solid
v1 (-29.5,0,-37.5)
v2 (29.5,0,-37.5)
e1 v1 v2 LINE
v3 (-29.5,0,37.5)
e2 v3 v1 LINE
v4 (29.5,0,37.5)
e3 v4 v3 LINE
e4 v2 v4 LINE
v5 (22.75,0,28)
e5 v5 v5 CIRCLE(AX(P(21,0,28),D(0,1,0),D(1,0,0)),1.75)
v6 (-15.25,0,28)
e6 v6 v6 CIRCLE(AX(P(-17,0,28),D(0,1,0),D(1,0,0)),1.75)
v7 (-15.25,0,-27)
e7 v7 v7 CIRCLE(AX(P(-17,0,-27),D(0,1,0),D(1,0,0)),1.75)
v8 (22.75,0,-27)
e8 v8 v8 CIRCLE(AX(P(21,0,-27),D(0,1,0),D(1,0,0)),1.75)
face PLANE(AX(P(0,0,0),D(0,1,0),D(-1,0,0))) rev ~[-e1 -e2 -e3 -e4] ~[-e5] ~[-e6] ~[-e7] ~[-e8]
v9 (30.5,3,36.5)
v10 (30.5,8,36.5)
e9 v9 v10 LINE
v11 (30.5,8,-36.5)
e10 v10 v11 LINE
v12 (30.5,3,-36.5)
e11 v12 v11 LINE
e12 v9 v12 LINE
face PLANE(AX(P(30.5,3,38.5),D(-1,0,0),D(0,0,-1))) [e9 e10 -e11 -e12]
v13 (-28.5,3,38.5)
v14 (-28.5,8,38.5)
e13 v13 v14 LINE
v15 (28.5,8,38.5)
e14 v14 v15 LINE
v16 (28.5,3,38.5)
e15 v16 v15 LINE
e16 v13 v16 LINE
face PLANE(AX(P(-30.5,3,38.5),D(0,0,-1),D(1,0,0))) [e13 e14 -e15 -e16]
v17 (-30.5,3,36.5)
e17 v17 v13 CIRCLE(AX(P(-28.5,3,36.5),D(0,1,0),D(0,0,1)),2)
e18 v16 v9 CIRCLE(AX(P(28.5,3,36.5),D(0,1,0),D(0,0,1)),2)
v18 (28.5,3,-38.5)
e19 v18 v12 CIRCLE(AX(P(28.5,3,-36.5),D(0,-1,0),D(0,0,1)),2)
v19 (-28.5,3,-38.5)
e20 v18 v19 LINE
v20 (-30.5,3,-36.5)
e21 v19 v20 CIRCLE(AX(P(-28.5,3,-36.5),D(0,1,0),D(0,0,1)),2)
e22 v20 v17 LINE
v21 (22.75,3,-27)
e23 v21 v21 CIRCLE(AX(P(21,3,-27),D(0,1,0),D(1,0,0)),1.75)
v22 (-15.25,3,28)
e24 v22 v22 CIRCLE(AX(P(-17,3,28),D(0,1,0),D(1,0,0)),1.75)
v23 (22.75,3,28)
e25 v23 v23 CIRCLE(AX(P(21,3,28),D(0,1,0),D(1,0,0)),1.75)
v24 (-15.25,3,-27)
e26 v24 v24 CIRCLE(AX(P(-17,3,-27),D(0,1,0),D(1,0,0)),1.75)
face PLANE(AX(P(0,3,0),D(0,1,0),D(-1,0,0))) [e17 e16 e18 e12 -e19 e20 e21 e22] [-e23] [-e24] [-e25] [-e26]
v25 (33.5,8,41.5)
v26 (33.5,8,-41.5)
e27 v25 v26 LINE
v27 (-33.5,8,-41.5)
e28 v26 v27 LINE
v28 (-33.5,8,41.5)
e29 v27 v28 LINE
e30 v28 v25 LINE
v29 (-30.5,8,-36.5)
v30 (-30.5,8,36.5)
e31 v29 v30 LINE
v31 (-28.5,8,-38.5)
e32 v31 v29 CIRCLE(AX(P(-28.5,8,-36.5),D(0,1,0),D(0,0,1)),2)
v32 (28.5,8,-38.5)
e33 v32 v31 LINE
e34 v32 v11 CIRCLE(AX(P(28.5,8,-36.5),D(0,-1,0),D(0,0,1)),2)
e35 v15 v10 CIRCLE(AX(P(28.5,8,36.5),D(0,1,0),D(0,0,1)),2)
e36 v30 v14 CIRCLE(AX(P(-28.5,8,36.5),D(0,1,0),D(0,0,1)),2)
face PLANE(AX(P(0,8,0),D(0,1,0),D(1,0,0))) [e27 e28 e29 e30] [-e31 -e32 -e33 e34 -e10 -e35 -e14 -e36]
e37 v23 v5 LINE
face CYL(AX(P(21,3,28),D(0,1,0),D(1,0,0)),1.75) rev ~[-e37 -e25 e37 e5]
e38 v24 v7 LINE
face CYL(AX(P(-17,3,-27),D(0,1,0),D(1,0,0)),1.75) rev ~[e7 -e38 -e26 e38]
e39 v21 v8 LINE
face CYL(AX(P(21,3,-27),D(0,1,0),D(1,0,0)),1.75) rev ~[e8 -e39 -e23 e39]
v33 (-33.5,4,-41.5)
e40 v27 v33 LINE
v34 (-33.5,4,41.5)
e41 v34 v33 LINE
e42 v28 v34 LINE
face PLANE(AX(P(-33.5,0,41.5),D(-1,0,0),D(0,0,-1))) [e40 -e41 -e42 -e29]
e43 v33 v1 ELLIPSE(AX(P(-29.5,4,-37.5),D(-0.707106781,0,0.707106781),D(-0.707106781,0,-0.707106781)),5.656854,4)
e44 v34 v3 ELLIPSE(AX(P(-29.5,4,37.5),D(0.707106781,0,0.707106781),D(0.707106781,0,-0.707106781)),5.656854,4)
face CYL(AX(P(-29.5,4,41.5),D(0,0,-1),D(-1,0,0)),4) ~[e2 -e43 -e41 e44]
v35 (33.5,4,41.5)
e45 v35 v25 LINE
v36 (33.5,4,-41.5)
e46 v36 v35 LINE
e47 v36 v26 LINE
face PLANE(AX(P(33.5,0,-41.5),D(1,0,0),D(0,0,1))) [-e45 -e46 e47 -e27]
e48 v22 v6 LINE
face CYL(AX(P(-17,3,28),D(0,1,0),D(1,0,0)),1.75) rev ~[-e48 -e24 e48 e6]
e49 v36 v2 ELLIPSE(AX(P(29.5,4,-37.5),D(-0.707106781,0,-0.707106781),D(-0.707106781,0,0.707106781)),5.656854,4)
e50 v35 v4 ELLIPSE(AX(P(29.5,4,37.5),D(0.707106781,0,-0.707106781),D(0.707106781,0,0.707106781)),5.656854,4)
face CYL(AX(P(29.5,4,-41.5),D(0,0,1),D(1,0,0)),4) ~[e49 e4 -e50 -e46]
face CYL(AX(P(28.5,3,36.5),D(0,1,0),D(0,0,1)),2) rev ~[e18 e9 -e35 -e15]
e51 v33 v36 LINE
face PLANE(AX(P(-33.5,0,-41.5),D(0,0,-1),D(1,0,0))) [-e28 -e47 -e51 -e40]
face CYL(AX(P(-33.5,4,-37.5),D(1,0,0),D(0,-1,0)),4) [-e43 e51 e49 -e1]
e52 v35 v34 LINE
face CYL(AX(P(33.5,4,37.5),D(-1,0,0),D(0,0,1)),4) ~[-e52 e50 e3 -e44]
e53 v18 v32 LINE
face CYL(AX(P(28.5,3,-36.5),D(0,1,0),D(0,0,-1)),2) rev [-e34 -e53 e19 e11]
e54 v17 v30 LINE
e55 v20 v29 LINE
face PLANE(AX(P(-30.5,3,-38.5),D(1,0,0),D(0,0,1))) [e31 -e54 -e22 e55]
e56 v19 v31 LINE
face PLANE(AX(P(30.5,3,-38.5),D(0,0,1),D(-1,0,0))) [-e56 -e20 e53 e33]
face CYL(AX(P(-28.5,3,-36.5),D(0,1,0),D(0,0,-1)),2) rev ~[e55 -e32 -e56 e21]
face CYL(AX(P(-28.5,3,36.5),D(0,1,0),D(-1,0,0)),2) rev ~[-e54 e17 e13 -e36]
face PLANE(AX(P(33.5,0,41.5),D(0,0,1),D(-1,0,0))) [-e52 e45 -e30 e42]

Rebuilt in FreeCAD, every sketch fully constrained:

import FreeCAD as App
import Part
import Sketcher


def edges_at(feature, points):
    """Names of the edges that pass closest to the given points."""
    edges = feature.Shape.Edges
    near = lambda p: min(range(len(edges)), key=lambda i: edges[i].distToShape(Part.Vertex(*p))[0])
    return sorted({f"Edge{near(p) + 1}" for p in points})


def add_polygon(sketch, points):
    """Adds a closed chain of lines whose ends are joined by coincident constraints."""
    first, n = sketch.GeometryCount, len(points)
    for a, b in zip(points, points[1:] + points[:1]):
        sketch.addGeometry(Part.LineSegment(App.Vector(*a, 0), App.Vector(*b, 0)), False)
    for i in range(n):
        sketch.addConstraint(Sketcher.Constraint("Coincident", first + i, 2, first + (i + 1) % n, 1))

doc = App.newDocument("Part")
body = doc.addObject("PartDesign::Body", "Body")

# Sketch on XZ plane
sketch1 = body.newObject("Sketcher::SketchObject", "Sketch")
sketch1.AttachmentSupport = (doc.getObject("XZ_Plane"), [""])
sketch1.MapMode = "FlatFace"
add_polygon(sketch1, [(-34, 42), (34, 42), (34, -42), (-34, -42)])  # lines 0-3
sketch1.addConstraint(Sketcher.Constraint("Horizontal", 0))
sketch1.addConstraint(Sketcher.Constraint("Vertical", 1))
sketch1.addConstraint(Sketcher.Constraint("Horizontal", 2))
sketch1.addConstraint(Sketcher.Constraint("Vertical", 3))
sketch1.addConstraint(Sketcher.Constraint("Symmetric", 0, 2, 2, 2, -1, 1))
sketch1.addConstraint(Sketcher.Constraint("DistanceX", 0, 1, 0, 2, 67.0))
sketch1.addConstraint(Sketcher.Constraint("DistanceY", 1, 2, 1, 1, 83.0))
pad1 = body.newObject("PartDesign::Pad", "Pad")
pad1.Profile = sketch1
pad1.Length = 3
pad1.Reversed = True

# Sketch on XZ plane
sketch2 = body.newObject("Sketcher::SketchObject", "Sketch001")
sketch2.AttachmentSupport = (doc.getObject("XZ_Plane"), [""])
sketch2.MapMode = "FlatFace"
sketch2.AttachmentOffset = App.Placement(App.Vector(0, 0, -3), App.Rotation())
add_polygon(sketch2, [(34, -42), (-34, -42), (-34, 42), (34, 42)])  # lines 0-3
add_polygon(sketch2, [(-30, -38), (30, -38), (30, 38), (-30, 38)])  # lines 4-7
sketch2.addConstraint(Sketcher.Constraint("Horizontal", 0))
sketch2.addConstraint(Sketcher.Constraint("Vertical", 1))
sketch2.addConstraint(Sketcher.Constraint("Horizontal", 2))
sketch2.addConstraint(Sketcher.Constraint("Vertical", 3))
sketch2.addConstraint(Sketcher.Constraint("Horizontal", 4))
sketch2.addConstraint(Sketcher.Constraint("Vertical", 5))
sketch2.addConstraint(Sketcher.Constraint("Horizontal", 6))
sketch2.addConstraint(Sketcher.Constraint("Vertical", 7))
sketch2.addConstraint(Sketcher.Constraint("Symmetric", 0, 2, 2, 2, -1, 1))
sketch2.addConstraint(Sketcher.Constraint("Symmetric", 4, 2, 6, 2, -1, 1))
sketch2.addConstraint(Sketcher.Constraint("DistanceX", 4, 1, 4, 2, 61.0))
sketch2.addConstraint(Sketcher.Constraint("DistanceY", 5, 1, 5, 2, 77.0))
sketch2.addConstraint(Sketcher.Constraint("DistanceX", 0, 2, 0, 1, 67.0))
sketch2.addConstraint(Sketcher.Constraint("DistanceY", 1, 1, 1, 2, 83.0))
pad2 = body.newObject("PartDesign::Pad", "Pad001")
pad2.Profile = sketch2
pad2.Length = 5
pad2.Reversed = True

# Sketch on XZ plane
sketch3 = body.newObject("Sketcher::SketchObject", "Sketch002")
sketch3.AttachmentSupport = (doc.getObject("XZ_Plane"), [""])
sketch3.MapMode = "FlatFace"
sketch3.AttachmentOffset = App.Placement(App.Vector(0, 0, -3), App.Rotation())
sketch3.addGeometry(Part.Circle(App.Vector(21, -27, 0), App.Vector(0, 0, 1), 1.8), False)
sketch3.addGeometry(Part.Circle(App.Vector(21, 28, 0), App.Vector(0, 0, 1), 1.8), False)
sketch3.addGeometry(Part.Circle(App.Vector(-17, -27, 0), App.Vector(0, 0, 1), 1.8), False)
sketch3.addGeometry(Part.Circle(App.Vector(-17, 28, 0), App.Vector(0, 0, 1), 1.8), False)
sketch3.addConstraint(Sketcher.Constraint("Equal", 0, 1))
sketch3.addConstraint(Sketcher.Constraint("Equal", 1, 2))
sketch3.addConstraint(Sketcher.Constraint("Equal", 2, 3))
sketch3.addConstraint(Sketcher.Constraint("Horizontal", 0, 3, 2, 3))
sketch3.addConstraint(Sketcher.Constraint("Horizontal", 1, 3, 3, 3))
sketch3.addConstraint(Sketcher.Constraint("Vertical", 0, 3, 1, 3))
sketch3.addConstraint(Sketcher.Constraint("Vertical", 2, 3, 3, 3))
sketch3.addConstraint(Sketcher.Constraint("Diameter", 0, 3.5))
sketch3.addConstraint(Sketcher.Constraint("DistanceY", 0, 3, 1, 3, 55.0))
sketch3.addConstraint(Sketcher.Constraint("DistanceX", 2, 3, 0, 3, 38.0))
sketch3.addConstraint(Sketcher.Constraint("DistanceX", -1, 1, 0, 3, 21.0))
sketch3.addConstraint(Sketcher.Constraint("DistanceY", 0, 3, -1, 1, 27.0))
pocket1 = body.newObject("PartDesign::Pocket", "Pocket")
pocket1.Profile = sketch3
pocket1.Length = 5
pocket1.Reversed = True
doc.recompute()

fillet = body.newObject("PartDesign::Fillet", "Fillet")
fillet.Base = (pocket1, edges_at(pocket1, [
    (33.5, 0, 0),
    (-33.5, 0, 0),
    (0, 0, 41.5),
    (0, 0, -41.5),
]))
fillet.Radius = 4
doc.recompute()

fillet2 = body.newObject("PartDesign::Fillet", "Fillet001")
fillet2.Base = (fillet, edges_at(fillet, [
    (-30.5, 5.5, -38.5),
    (30.5, 5.5, -38.5),
    (30.5, 5.5, 38.5),
    (-30.5, 5.5, 38.5),
]))
fillet2.Radius = 2

doc.recompute()
